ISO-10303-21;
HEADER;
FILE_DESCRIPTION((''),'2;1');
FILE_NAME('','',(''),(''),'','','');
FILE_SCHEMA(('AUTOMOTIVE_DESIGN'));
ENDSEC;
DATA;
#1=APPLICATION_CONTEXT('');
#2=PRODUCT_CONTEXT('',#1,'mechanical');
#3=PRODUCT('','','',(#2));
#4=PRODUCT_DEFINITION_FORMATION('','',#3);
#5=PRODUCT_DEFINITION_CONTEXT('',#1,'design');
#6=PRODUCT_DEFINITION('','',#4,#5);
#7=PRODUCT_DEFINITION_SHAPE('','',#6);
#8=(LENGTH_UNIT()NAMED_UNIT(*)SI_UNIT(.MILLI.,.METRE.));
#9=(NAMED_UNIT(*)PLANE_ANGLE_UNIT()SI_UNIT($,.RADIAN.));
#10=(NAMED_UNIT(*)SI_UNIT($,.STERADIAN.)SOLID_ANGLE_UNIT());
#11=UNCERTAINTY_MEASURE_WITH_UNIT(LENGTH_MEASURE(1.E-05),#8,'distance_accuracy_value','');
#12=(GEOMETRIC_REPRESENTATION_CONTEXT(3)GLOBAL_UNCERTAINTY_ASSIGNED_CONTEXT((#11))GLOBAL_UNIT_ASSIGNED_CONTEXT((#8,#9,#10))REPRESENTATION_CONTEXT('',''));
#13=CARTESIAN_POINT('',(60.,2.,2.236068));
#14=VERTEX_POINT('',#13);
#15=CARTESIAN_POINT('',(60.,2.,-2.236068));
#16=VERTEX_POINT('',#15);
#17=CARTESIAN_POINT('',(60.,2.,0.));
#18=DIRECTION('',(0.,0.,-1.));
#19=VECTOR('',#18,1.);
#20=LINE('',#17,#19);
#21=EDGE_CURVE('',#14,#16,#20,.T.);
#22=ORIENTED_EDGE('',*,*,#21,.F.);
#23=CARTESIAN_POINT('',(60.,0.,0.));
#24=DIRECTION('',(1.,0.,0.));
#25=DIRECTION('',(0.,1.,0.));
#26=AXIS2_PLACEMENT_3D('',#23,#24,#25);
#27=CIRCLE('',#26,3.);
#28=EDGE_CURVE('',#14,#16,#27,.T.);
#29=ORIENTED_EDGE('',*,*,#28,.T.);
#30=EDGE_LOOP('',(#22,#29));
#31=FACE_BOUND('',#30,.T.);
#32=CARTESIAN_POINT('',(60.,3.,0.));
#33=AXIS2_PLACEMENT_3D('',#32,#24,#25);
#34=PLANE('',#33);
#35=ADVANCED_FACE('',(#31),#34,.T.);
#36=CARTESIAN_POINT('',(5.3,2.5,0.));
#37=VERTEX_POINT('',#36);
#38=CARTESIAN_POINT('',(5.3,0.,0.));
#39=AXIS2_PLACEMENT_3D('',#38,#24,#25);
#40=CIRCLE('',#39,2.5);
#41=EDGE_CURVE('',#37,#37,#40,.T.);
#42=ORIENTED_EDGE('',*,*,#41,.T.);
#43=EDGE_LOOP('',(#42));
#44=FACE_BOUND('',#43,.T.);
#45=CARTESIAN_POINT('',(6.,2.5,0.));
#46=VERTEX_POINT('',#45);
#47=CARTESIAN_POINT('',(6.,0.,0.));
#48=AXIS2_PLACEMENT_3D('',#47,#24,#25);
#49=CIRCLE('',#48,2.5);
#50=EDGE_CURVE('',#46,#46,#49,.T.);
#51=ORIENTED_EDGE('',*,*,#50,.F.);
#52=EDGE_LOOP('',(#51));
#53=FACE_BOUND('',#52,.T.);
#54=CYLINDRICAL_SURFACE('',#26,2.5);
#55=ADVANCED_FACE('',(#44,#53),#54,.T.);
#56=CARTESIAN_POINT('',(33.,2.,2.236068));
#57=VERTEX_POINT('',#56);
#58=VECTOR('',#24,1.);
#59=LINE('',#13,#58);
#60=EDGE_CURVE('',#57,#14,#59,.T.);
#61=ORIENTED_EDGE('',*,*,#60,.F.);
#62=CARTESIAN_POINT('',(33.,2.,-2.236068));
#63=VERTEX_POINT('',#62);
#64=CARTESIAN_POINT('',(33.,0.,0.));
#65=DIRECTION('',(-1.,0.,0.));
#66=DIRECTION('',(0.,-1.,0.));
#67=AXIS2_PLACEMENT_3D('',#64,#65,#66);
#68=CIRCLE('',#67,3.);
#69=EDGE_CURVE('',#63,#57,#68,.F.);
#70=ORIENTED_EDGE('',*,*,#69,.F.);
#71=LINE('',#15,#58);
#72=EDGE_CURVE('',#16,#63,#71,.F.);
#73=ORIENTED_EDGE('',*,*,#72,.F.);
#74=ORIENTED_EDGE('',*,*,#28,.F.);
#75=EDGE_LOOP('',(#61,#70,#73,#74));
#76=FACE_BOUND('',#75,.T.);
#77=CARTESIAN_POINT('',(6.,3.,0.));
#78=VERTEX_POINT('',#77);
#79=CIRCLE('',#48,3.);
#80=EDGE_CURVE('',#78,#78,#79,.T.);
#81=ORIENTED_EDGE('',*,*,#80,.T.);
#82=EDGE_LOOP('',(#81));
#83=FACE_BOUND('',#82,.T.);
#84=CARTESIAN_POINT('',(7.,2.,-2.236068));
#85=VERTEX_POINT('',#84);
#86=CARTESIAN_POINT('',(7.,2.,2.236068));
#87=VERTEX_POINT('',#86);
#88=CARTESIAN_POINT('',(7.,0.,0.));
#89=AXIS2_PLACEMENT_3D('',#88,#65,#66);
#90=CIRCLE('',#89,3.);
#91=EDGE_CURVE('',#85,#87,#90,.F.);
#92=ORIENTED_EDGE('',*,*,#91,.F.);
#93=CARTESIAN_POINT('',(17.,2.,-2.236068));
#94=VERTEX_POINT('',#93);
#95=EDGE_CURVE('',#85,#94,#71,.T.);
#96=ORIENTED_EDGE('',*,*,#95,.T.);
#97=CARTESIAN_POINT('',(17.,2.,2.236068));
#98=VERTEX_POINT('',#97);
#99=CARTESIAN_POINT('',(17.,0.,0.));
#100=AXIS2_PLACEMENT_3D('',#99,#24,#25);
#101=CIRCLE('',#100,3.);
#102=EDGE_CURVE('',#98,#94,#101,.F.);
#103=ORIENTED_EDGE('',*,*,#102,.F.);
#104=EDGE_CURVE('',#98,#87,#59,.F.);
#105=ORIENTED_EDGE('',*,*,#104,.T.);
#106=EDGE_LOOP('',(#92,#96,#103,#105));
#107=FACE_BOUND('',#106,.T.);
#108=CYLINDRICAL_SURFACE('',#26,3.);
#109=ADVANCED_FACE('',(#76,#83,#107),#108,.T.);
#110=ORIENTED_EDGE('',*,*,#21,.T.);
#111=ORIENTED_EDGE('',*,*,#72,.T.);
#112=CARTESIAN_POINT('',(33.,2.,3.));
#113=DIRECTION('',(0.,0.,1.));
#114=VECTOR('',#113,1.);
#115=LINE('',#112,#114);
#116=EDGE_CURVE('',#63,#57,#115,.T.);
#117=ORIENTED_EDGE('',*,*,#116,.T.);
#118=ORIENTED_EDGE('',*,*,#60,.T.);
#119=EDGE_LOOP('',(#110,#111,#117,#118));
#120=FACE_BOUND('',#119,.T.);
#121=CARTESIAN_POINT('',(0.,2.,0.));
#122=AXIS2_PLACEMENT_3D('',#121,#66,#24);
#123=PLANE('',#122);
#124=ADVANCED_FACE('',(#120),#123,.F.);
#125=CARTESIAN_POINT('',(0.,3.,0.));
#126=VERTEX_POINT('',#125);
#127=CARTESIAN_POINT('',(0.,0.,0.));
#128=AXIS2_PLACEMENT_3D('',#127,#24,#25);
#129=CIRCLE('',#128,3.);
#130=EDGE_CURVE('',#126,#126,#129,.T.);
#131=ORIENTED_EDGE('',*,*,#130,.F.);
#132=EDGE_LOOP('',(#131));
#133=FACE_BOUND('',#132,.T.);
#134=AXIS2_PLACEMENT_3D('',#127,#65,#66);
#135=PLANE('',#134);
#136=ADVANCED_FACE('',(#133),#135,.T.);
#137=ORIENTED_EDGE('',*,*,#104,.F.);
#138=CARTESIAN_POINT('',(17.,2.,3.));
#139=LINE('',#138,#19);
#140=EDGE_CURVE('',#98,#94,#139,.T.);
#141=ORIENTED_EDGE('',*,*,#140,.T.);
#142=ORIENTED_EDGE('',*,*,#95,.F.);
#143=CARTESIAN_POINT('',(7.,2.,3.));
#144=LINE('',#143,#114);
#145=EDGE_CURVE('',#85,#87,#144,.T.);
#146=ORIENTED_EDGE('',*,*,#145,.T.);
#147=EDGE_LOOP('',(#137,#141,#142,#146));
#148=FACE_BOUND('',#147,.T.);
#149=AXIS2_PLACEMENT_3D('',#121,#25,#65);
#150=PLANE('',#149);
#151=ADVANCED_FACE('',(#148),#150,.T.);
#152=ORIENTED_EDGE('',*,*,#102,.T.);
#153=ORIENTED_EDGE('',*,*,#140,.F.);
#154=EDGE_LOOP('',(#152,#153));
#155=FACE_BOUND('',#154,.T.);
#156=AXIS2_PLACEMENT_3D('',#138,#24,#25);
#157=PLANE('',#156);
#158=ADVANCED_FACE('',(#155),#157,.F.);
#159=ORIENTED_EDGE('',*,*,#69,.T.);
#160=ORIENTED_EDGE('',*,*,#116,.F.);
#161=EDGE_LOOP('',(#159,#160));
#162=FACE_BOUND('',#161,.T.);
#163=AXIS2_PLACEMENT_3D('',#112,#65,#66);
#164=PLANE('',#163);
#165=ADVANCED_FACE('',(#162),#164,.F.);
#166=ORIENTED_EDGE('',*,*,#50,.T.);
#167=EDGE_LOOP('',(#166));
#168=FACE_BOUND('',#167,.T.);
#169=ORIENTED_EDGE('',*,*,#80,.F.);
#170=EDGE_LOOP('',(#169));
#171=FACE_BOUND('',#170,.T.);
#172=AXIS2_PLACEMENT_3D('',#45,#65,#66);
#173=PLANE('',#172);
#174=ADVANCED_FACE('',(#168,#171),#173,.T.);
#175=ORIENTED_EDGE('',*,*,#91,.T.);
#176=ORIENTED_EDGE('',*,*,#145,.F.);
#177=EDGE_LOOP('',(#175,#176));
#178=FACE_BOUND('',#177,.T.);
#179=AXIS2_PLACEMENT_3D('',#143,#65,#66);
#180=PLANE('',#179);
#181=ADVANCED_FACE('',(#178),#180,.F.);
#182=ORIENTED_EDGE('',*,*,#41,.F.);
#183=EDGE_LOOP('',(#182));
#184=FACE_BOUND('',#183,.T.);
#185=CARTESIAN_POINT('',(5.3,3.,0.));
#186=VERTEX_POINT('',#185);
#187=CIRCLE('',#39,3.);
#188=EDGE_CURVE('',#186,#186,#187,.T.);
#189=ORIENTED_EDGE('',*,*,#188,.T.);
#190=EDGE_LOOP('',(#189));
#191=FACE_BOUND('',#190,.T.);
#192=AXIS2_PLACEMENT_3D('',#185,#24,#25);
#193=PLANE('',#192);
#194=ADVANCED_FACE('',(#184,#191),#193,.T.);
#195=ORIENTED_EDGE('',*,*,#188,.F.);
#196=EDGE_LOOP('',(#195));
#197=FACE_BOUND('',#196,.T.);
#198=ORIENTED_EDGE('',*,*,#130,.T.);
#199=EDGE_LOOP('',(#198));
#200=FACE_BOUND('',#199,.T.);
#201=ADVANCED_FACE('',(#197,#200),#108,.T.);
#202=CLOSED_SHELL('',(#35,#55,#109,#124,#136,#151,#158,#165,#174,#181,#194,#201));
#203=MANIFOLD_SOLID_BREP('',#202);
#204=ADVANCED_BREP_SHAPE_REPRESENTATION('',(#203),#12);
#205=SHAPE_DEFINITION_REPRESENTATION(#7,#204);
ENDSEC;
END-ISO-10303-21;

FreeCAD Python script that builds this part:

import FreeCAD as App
import Part
import Sketcher
from FreeCAD import Vector
Q = App.Units.Quantity

doc = App.newDocument("Part")
body = doc.addObject("PartDesign::Body", "Body")

# Sketch on XY plane
sketch1 = body.newObject("Sketcher::SketchObject", "Sketch")
sketch1.AttachmentSupport = (doc.getObject("XY_Plane"), [""])
sketch1.MapMode = "FlatFace"
sketch1.addGeometry(Part.LineSegment(Vector(0, 3, 0), Vector(0, 0, 0)), False)
sketch1.addGeometry(Part.LineSegment(Vector(0, 0, 0), Vector(60, 0, 0)), False)
sketch1.addGeometry(Part.LineSegment(Vector(60, 0, 0), Vector(60, 3, 0)), False)
sketch1.addGeometry(Part.LineSegment(Vector(60, 3, 0), Vector(6, 3, 0)), False)
sketch1.addGeometry(Part.LineSegment(Vector(6, 3, 0), Vector(6, 2.5, 0)), False)
sketch1.addGeometry(Part.LineSegment(Vector(6, 2.5, 0), Vector(5.3, 2.5, 0)), False)
sketch1.addGeometry(Part.LineSegment(Vector(5.3, 2.5, 0), Vector(5.3, 3, 0)), False)
sketch1.addGeometry(Part.LineSegment(Vector(5.3, 3, 0), Vector(0, 3, 0)), False)
sketch1.addConstraint(Sketcher.Constraint("Coincident", 0, 2, 1, 1))
sketch1.addConstraint(Sketcher.Constraint("Coincident", 1, 2, 2, 1))
sketch1.addConstraint(Sketcher.Constraint("Coincident", 2, 2, 3, 1))
sketch1.addConstraint(Sketcher.Constraint("Coincident", 3, 2, 4, 1))
sketch1.addConstraint(Sketcher.Constraint("Coincident", 4, 2, 5, 1))
sketch1.addConstraint(Sketcher.Constraint("Coincident", 5, 2, 6, 1))
sketch1.addConstraint(Sketcher.Constraint("Coincident", 6, 2, 7, 1))
sketch1.addConstraint(Sketcher.Constraint("Coincident", 7, 2, 0, 1))
sketch1.addConstraint(Sketcher.Constraint("Vertical", 0))
sketch1.addConstraint(Sketcher.Constraint("Horizontal", 1))
sketch1.addConstraint(Sketcher.Constraint("Vertical", 2))
sketch1.addConstraint(Sketcher.Constraint("Horizontal", 3))
sketch1.addConstraint(Sketcher.Constraint("Vertical", 4))
sketch1.addConstraint(Sketcher.Constraint("Horizontal", 5))
sketch1.addConstraint(Sketcher.Constraint("Vertical", 6))
sketch1.addConstraint(Sketcher.Constraint("Horizontal", 7))
sketch1.addConstraint(Sketcher.Constraint("Coincident", 0, 2, -1, 1))
sketch1.addConstraint(Sketcher.Constraint("Horizontal", 3, 2, 6, 2))
sketch1.addConstraint(Sketcher.Constraint("DistanceX", 1, 1, 1, 2, Q("60 mm")))
sketch1.addConstraint(Sketcher.Constraint("DistanceX", 3, 2, 3, 1, Q("54 mm")))
sketch1.addConstraint(Sketcher.Constraint("DistanceY", 0, 2, 0, 1, Q("3 mm")))
sketch1.addConstraint(Sketcher.Constraint("DistanceX", 5, 2, 5, 1, Q("0.7 mm")))
sketch1.addConstraint(Sketcher.Constraint("DistanceY", 4, 2, 4, 1, Q("0.5 mm")))
revolution = body.newObject("PartDesign::Revolution", "Revolution")
revolution.Profile = sketch1
revolution.ReferenceAxis = (sketch1, ["H_Axis"])
revolution.Angle = 360

# Sketch on XZ plane
sketch2 = body.newObject("Sketcher::SketchObject", "Sketch001")
sketch2.AttachmentSupport = (doc.getObject("XZ_Plane"), [""])
sketch2.MapMode = "FlatFace"
sketch2.AttachmentOffset = App.Placement(Vector(0, 0, -3), App.Rotation())
sketch2.addGeometry(Part.LineSegment(Vector(7, -3, 0), Vector(7, 3, 0)), False)
sketch2.addGeometry(Part.LineSegment(Vector(7, 3, 0), Vector(17, 3, 0)), False)
sketch2.addGeometry(Part.LineSegment(Vector(17, 3, 0), Vector(17, -3, 0)), False)
sketch2.addGeometry(Part.LineSegment(Vector(17, -3, 0), Vector(7, -3, 0)), False)
sketch2.addGeometry(Part.LineSegment(Vector(33, -3, 0), Vector(33, 3, 0)), False)
sketch2.addGeometry(Part.LineSegment(Vector(33, 3, 0), Vector(60, 3, 0)), False)
sketch2.addGeometry(Part.LineSegment(Vector(60, 3, 0), Vector(60, -3, 0)), False)
sketch2.addGeometry(Part.LineSegment(Vector(60, -3, 0), Vector(33, -3, 0)), False)
sketch2.addConstraint(Sketcher.Constraint("Coincident", 0, 2, 1, 1))
sketch2.addConstraint(Sketcher.Constraint("Coincident", 1, 2, 2, 1))
sketch2.addConstraint(Sketcher.Constraint("Coincident", 2, 2, 3, 1))
sketch2.addConstraint(Sketcher.Constraint("Coincident", 3, 2, 0, 1))
sketch2.addConstraint(Sketcher.Constraint("Coincident", 4, 2, 5, 1))
sketch2.addConstraint(Sketcher.Constraint("Coincident", 5, 2, 6, 1))
sketch2.addConstraint(Sketcher.Constraint("Coincident", 6, 2, 7, 1))
sketch2.addConstraint(Sketcher.Constraint("Coincident", 7, 2, 4, 1))
sketch2.addConstraint(Sketcher.Constraint("Vertical", 0))
sketch2.addConstraint(Sketcher.Constraint("Horizontal", 1))
sketch2.addConstraint(Sketcher.Constraint("Vertical", 2))
sketch2.addConstraint(Sketcher.Constraint("Horizontal", 3))
sketch2.addConstraint(Sketcher.Constraint("Vertical", 4))
sketch2.addConstraint(Sketcher.Constraint("Horizontal", 5))
sketch2.addConstraint(Sketcher.Constraint("Vertical", 6))
sketch2.addConstraint(Sketcher.Constraint("Horizontal", 7))
sketch2.addConstraint(Sketcher.Constraint("Horizontal", 1, 2, 4, 2))
sketch2.addConstraint(Sketcher.Constraint("Horizontal", 3, 2, 6, 2))
sketch2.addConstraint(Sketcher.Constraint("DistanceX", 1, 1, 1, 2, Q("10 mm")))
sketch2.addConstraint(Sketcher.Constraint("DistanceX", 5, 1, 5, 2, Q("27 mm")))
sketch2.addConstraint(Sketcher.Constraint("DistanceY", 0, 1, 0, 2, Q("6 mm")))
sketch2.addConstraint(Sketcher.Constraint("DistanceX", -1, 1, 0, 2, Q("7 mm")))
sketch2.addConstraint(Sketcher.Constraint("DistanceY", -1, 1, 0, 2, Q("3 mm")))
sketch2.addConstraint(Sketcher.Constraint("DistanceX", -1, 1, 4, 2, Q("33 mm")))
pocket1 = body.newObject("PartDesign::Pocket", "Pocket")
pocket1.Profile = sketch2
pocket1.Length = 1
pocket1.Reversed = True

doc.recompute()
